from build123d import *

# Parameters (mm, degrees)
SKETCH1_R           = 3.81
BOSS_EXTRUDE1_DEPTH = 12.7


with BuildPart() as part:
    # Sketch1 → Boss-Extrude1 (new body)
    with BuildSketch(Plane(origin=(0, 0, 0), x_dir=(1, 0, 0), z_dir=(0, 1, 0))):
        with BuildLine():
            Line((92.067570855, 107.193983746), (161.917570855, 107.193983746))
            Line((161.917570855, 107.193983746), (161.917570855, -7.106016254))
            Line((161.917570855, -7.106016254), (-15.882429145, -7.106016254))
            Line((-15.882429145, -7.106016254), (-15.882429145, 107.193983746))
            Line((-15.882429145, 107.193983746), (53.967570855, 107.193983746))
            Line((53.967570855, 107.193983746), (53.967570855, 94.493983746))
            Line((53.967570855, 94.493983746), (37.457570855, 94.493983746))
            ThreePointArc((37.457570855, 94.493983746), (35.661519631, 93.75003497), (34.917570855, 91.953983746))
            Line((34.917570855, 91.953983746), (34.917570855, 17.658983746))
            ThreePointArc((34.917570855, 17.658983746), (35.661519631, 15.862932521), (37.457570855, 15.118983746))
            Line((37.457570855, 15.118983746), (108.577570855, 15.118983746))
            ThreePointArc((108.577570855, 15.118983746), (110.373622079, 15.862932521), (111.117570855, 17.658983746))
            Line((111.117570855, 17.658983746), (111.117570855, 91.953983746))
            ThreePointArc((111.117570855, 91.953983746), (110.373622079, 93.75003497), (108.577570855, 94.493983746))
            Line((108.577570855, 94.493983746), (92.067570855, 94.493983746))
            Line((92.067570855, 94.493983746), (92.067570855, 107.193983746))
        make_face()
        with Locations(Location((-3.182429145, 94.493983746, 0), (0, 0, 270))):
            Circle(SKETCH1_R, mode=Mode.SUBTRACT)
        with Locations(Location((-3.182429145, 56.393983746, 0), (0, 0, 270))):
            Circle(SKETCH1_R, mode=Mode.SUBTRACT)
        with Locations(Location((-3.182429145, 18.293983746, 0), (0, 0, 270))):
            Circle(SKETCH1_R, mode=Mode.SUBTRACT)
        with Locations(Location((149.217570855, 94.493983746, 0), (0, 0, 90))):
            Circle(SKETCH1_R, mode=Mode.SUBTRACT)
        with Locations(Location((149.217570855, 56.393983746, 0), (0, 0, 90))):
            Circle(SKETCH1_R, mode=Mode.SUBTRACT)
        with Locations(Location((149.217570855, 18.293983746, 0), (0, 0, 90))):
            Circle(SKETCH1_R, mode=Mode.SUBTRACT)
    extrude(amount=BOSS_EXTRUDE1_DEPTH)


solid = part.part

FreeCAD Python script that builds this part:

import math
import FreeCAD as App
import Part
import Sketcher
Q = App.Units.Quantity

doc = App.newDocument("Part")
body = doc.addObject("PartDesign::Body", "Body")

# Sketch on XZ plane
sketch1 = body.newObject("Sketcher::SketchObject", "Sketch")
sketch1.AttachmentSupport = (doc.getObject("XZ_Plane"), [""])
sketch1.MapMode = "FlatFace"
sketch1.addGeometry([
    Part.LineSegment(App.Vector(161.917571, -107.193984, 0), App.Vector(92.067571, -107.193984, 0)),  # 0
    Part.LineSegment(App.Vector(92.067571, -107.193984, 0), App.Vector(92.067571, -94.493984, 0)),  # 1
    Part.LineSegment(App.Vector(92.067571, -94.493984, 0), App.Vector(108.577571, -94.493984, 0)),  # 2
    Part.ArcOfCircle(Part.Circle(App.Vector(108.577571, -91.953984, 0), App.Vector(0, 0, 1), 2.54), math.radians(-90), math.radians(0)),  # 3
    Part.LineSegment(App.Vector(111.117571, -91.953984, 0), App.Vector(111.117571, -17.658984, 0)),  # 4
    Part.ArcOfCircle(Part.Circle(App.Vector(108.577571, -17.658984, 0), App.Vector(0, 0, 1), 2.54), math.radians(0), math.radians(90)),  # 5
    Part.LineSegment(App.Vector(108.577571, -15.118984, 0), App.Vector(37.457571, -15.118984, 0)),  # 6
    Part.ArcOfCircle(Part.Circle(App.Vector(37.457571, -17.658984, 0), App.Vector(0, 0, 1), 2.54), math.radians(90), math.radians(180)),  # 7
    Part.LineSegment(App.Vector(34.917571, -17.658984, 0), App.Vector(34.917571, -91.953984, 0)),  # 8
    Part.ArcOfCircle(Part.Circle(App.Vector(37.457571, -91.953984, 0), App.Vector(0, 0, 1), 2.54), math.radians(-180), math.radians(-90)),  # 9
    Part.LineSegment(App.Vector(37.457571, -94.493984, 0), App.Vector(53.967571, -94.493984, 0)),  # 10
    Part.LineSegment(App.Vector(53.967571, -94.493984, 0), App.Vector(53.967571, -107.193984, 0)),  # 11
    Part.LineSegment(App.Vector(53.967571, -107.193984, 0), App.Vector(-15.882429, -107.193984, 0)),  # 12
    Part.LineSegment(App.Vector(-15.882429, -107.193984, 0), App.Vector(-15.882429, 7.106016, 0)),  # 13
    Part.LineSegment(App.Vector(-15.882429, 7.106016, 0), App.Vector(161.917571, 7.106016, 0)),  # 14
    Part.LineSegment(App.Vector(161.917571, 7.106016, 0), App.Vector(161.917571, -107.193984, 0)),  # 15
    Part.Circle(App.Vector(149.217571, -18.293984, 0), App.Vector(0, 0, 1), 3.81),  # 16
    Part.Circle(App.Vector(-3.182429, -18.293984, 0), App.Vector(0, 0, 1), 3.81),  # 17
    Part.Circle(App.Vector(149.217571, -56.393984, 0), App.Vector(0, 0, 1), 3.81),  # 18
    Part.Circle(App.Vector(149.217571, -94.493984, 0), App.Vector(0, 0, 1), 3.81),  # 19
    Part.Circle(App.Vector(-3.182429, -56.393984, 0), App.Vector(0, 0, 1), 3.81),  # 20
    Part.Circle(App.Vector(-3.182429, -94.493984, 0), App.Vector(0, 0, 1), 3.81),  # 21
], False)
sketch1.addConstraint([
    Sketcher.Constraint("Coincident", 0, 2, 1, 1),
    Sketcher.Constraint("Coincident", 1, 2, 2, 1),
    Sketcher.Constraint("Tangent", 2, 2, 3, 1),
    Sketcher.Constraint("Tangent", 3, 2, 4, 1),
    Sketcher.Constraint("Tangent", 4, 2, 5, 1),
    Sketcher.Constraint("Tangent", 5, 2, 6, 1),
    Sketcher.Constraint("Tangent", 6, 2, 7, 1),
    Sketcher.Constraint("Tangent", 7, 2, 8, 1),
    Sketcher.Constraint("Tangent", 8, 2, 9, 1),
    Sketcher.Constraint("Tangent", 9, 2, 10, 1),
    Sketcher.Constraint("Coincident", 10, 2, 11, 1),
    Sketcher.Constraint("Coincident", 11, 2, 12, 1),
    Sketcher.Constraint("Coincident", 12, 2, 13, 1),
    Sketcher.Constraint("Coincident", 13, 2, 14, 1),
    Sketcher.Constraint("Coincident", 14, 2, 15, 1),
    Sketcher.Constraint("Coincident", 15, 2, 0, 1),
    Sketcher.Constraint("Horizontal", 0),
    Sketcher.Constraint("Vertical", 1),
    Sketcher.Constraint("Horizontal", 2),
    Sketcher.Constraint("Vertical", 4),
    Sketcher.Constraint("Horizontal", 6),
    Sketcher.Constraint("Vertical", 8),
    Sketcher.Constraint("Horizontal", 10),
    Sketcher.Constraint("Vertical", 11),
    Sketcher.Constraint("Horizontal", 12),
    Sketcher.Constraint("Vertical", 13),
    Sketcher.Constraint("Horizontal", 14),
    Sketcher.Constraint("Vertical", 15),
    Sketcher.Constraint("Equal", 3, 5),
    Sketcher.Constraint("Equal", 5, 7),
    Sketcher.Constraint("Equal", 7, 9),
    Sketcher.Constraint("Equal", 16, 17),
    Sketcher.Constraint("Equal", 17, 18),
    Sketcher.Constraint("Equal", 18, 19),
    Sketcher.Constraint("Equal", 19, 20),
    Sketcher.Constraint("Equal", 20, 21),
    Sketcher.Constraint("Horizontal", 3, 3, 9, 3),
    Sketcher.Constraint("Horizontal", 16, 3, 17, 3),
    Sketcher.Constraint("Horizontal", 18, 3, 20, 3),
    Sketcher.Constraint("Horizontal", 19, 3, 21, 3),
    Sketcher.Constraint("Horizontal", 21, 3, 1, 2),
    Sketcher.Constraint("Horizontal", 0, 2, 11, 2),
    Sketcher.Constraint("Vertical", 16, 3, 18, 3),
    Sketcher.Constraint("Vertical", 18, 3, 19, 3),
    Sketcher.Constraint("Vertical", 17, 3, 20, 3),
    Sketcher.Constraint("Vertical", 20, 3, 21, 3),
    Sketcher.Constraint("Equal", 2, 10),
    Sketcher.Constraint("Equal", 0, 12),
    Sketcher.Constraint("Diameter", 16, Q("0.3 in")),
    Sketcher.Constraint("Radius", 3, Q("0.1 in")),
    Sketcher.Constraint("DistanceX", 14, 1, 14, 2, Q("7 in")),
    Sketcher.Constraint("DistanceX", 6, 2, 6, 1, Q("2.8 in")),
    Sketcher.Constraint("DistanceY", 1, 1, 1, 2, Q("0.5 in")),
    Sketcher.Constraint("DistanceY", 13, 1, 13, 2, Q("4.5 in")),
    Sketcher.Constraint("DistanceX", 17, 3, 16, 3, Q("6 in")),
    Sketcher.Constraint("DistanceY", 19, 3, 16, 3, Q("3 in")),
    Sketcher.Constraint("DistanceY", 0, 2, 18, 3, Q("2 in")),
    Sketcher.Constraint("DistanceX", 0, 2, 0, 1, Q("2.75 in")),
    Sketcher.Constraint("DistanceX", 5, 3, 16, 3, Q("1.6 in")),
    Sketcher.Constraint("DistanceY", 4, 1, 4, 2, Q("2.925 in")),
    Sketcher.Constraint("DistanceX", -1, 1, 3, 3, 108.577571),
    Sketcher.Constraint("DistanceY", 3, 3, -1, 1, 91.953984),
])
pad1 = body.newObject("PartDesign::Pad", "Pad")
pad1.Profile = sketch1
pad1.Length = Q("0.5 in")
pad1.Reversed = True

doc.recompute()
